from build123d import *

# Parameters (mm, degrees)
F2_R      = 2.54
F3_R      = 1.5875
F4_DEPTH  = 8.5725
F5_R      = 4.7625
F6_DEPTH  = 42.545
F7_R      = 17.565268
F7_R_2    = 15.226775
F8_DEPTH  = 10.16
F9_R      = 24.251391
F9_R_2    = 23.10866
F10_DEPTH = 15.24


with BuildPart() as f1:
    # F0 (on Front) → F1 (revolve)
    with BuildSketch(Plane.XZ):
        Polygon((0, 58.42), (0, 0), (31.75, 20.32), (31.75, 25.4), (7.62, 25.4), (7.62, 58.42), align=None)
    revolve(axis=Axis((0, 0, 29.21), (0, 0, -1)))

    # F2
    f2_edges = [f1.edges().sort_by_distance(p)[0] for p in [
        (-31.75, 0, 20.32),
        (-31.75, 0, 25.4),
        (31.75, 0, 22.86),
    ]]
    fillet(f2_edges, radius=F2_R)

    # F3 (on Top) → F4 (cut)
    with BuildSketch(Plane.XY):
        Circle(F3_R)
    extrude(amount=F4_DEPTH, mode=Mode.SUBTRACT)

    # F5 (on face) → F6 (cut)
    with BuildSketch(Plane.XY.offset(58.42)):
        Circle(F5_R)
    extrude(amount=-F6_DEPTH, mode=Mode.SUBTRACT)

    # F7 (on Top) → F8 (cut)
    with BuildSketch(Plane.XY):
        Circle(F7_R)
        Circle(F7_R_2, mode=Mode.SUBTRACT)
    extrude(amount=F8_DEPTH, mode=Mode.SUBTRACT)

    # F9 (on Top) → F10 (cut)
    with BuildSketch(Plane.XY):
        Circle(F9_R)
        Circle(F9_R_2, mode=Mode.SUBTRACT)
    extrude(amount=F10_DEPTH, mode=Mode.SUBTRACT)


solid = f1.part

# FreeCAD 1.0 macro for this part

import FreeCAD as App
import Part
import Sketcher
Q = App.Units.Quantity


def edges_at(feature, points):
    """Names of the edges that pass closest to the given points."""
    edges = feature.Shape.Edges
    near = lambda p: min(range(len(edges)), key=lambda i: edges[i].distToShape(Part.Vertex(*p))[0])
    return sorted({f"Edge{near(p) + 1}" for p in points})

doc = App.newDocument("Part")
body = doc.addObject("PartDesign::Body", "Body")

# Sketch on XZ plane
sketch1 = body.newObject("Sketcher::SketchObject", "Sketch")
sketch1.AttachmentSupport = (doc.getObject("XZ_Plane"), [""])
sketch1.MapMode = "FlatFace"
sketch1.addGeometry([
    Part.LineSegment(App.Vector(0, 58, 0), App.Vector(0, 0, 0)),  # 0
    Part.LineSegment(App.Vector(0, 0, 0), App.Vector(32, 20, 0)),  # 1
    Part.LineSegment(App.Vector(32, 20, 0), App.Vector(32, 25, 0)),  # 2
    Part.LineSegment(App.Vector(32, 25, 0), App.Vector(8, 25, 0)),  # 3
    Part.LineSegment(App.Vector(8, 25, 0), App.Vector(8, 58, 0)),  # 4
    Part.LineSegment(App.Vector(8, 58, 0), App.Vector(0, 58, 0)),  # 5
], False)
sketch1.addConstraint([
    Sketcher.Constraint("Coincident", 0, 2, 1, 1),
    Sketcher.Constraint("Coincident", 1, 2, 2, 1),
    Sketcher.Constraint("Coincident", 2, 2, 3, 1),
    Sketcher.Constraint("Coincident", 3, 2, 4, 1),
    Sketcher.Constraint("Coincident", 4, 2, 5, 1),
    Sketcher.Constraint("Coincident", 5, 2, 0, 1),
    Sketcher.Constraint("Vertical", 0),
    Sketcher.Constraint("Vertical", 2),
    Sketcher.Constraint("Horizontal", 3),
    Sketcher.Constraint("Vertical", 4),
    Sketcher.Constraint("Horizontal", 5),
    Sketcher.Constraint("Coincident", 0, 2, -1, 1),
    Sketcher.Constraint("DistanceX", 5, 2, 5, 1, Q("0.3 in")),
    Sketcher.Constraint("DistanceY", 0, 2, 0, 1, Q("2.3 in")),
    Sketcher.Constraint("DistanceY", 2, 1, 2, 2, Q("0.2 in")),
    Sketcher.Constraint("DistanceY", 4, 1, 4, 2, Q("1.3 in")),
    Sketcher.Constraint("DistanceX", 3, 2, 3, 1, Q("0.95 in")),
])
revolution = body.newObject("PartDesign::Revolution", "Revolution")
revolution.Profile = sketch1
revolution.ReferenceAxis = (sketch1, ["V_Axis"])
revolution.Angle = 360
doc.recompute()

fillet = body.newObject("PartDesign::Fillet", "Fillet")
fillet.Base = (revolution, edges_at(revolution, [(-31.75, 0, 20.32), (-31.75, 0, 25.4), (31.75, 0, 22.86)]))
fillet.Radius = Q("0.1 in")

# Sketch on XY plane
sketch2 = body.newObject("Sketcher::SketchObject", "Sketch001")
sketch2.AttachmentSupport = (doc.getObject("XY_Plane"), [""])
sketch2.MapMode = "FlatFace"
sketch2.addGeometry(Part.Circle(App.Vector(0, 0, 0), App.Vector(0, 0, 1), 1.6), False)
sketch2.addConstraint([
    Sketcher.Constraint("Coincident", 0, 3, -1, 1),
    Sketcher.Constraint("Diameter", 0, Q("0.125 in")),
])
pocket1 = body.newObject("PartDesign::Pocket", "Pocket")
pocket1.Profile = sketch2
pocket1.Length = Q("0.3375 in")
pocket1.Reversed = True

# Sketch on XY plane
sketch3 = body.newObject("Sketcher::SketchObject", "Sketch002")
sketch3.AttachmentSupport = (doc.getObject("XY_Plane"), [""])
sketch3.MapMode = "FlatFace"
sketch3.AttachmentOffset = App.Placement(App.Vector(0, 0, 2.3 * 25.4), App.Rotation())
sketch3.addGeometry(Part.Circle(App.Vector(0, 0, 0), App.Vector(0, 0, 1), 4.8), False)
sketch3.addConstraint([
    Sketcher.Constraint("Coincident", 0, 3, -1, 1),
    Sketcher.Constraint("Diameter", 0, Q("0.375 in")),
])
pocket2 = body.newObject("PartDesign::Pocket", "Pocket001")
pocket2.Profile = sketch3
pocket2.Length = Q("1.675 in")

# Sketch on XY plane
sketch4 = body.newObject("Sketcher::SketchObject", "Sketch003")
sketch4.AttachmentSupport = (doc.getObject("XY_Plane"), [""])
sketch4.MapMode = "FlatFace"
sketch4.addGeometry([
    Part.Circle(App.Vector(0, 0, 0), App.Vector(0, 0, 1), 18),
    Part.Circle(App.Vector(0, 0, 0), App.Vector(0, 0, 1), 15),
], False)
sketch4.addConstraint([
    Sketcher.Constraint("Coincident", 0, 3, -1, 1),
    Sketcher.Constraint("Coincident", 1, 3, -1, 1),
    Sketcher.Constraint("Diameter", 1, 30.45355),
    Sketcher.Constraint("Diameter", 0, 35.130536),
])
pocket3 = body.newObject("PartDesign::Pocket", "Pocket002")
pocket3.Profile = sketch4
pocket3.Length = Q("0.4 in")
pocket3.Reversed = True

# Sketch on XY plane
sketch5 = body.newObject("Sketcher::SketchObject", "Sketch004")
sketch5.AttachmentSupport = (doc.getObject("XY_Plane"), [""])
sketch5.MapMode = "FlatFace"
sketch5.addGeometry([
    Part.Circle(App.Vector(0, 0, 0), App.Vector(0, 0, 1), 24),
    Part.Circle(App.Vector(0, 0, 0), App.Vector(0, 0, 1), 23),
], False)
sketch5.addConstraint([
    Sketcher.Constraint("Coincident", 0, 3, -1, 1),
    Sketcher.Constraint("Coincident", 1, 3, -1, 1),
    Sketcher.Constraint("Diameter", 1, 46.21732),
    Sketcher.Constraint("Diameter", 0, 48.502782),
])
pocket4 = body.newObject("PartDesign::Pocket", "Pocket003")
pocket4.Profile = sketch5
pocket4.Length = Q("0.6 in")
pocket4.Reversed = True

doc.recompute()
